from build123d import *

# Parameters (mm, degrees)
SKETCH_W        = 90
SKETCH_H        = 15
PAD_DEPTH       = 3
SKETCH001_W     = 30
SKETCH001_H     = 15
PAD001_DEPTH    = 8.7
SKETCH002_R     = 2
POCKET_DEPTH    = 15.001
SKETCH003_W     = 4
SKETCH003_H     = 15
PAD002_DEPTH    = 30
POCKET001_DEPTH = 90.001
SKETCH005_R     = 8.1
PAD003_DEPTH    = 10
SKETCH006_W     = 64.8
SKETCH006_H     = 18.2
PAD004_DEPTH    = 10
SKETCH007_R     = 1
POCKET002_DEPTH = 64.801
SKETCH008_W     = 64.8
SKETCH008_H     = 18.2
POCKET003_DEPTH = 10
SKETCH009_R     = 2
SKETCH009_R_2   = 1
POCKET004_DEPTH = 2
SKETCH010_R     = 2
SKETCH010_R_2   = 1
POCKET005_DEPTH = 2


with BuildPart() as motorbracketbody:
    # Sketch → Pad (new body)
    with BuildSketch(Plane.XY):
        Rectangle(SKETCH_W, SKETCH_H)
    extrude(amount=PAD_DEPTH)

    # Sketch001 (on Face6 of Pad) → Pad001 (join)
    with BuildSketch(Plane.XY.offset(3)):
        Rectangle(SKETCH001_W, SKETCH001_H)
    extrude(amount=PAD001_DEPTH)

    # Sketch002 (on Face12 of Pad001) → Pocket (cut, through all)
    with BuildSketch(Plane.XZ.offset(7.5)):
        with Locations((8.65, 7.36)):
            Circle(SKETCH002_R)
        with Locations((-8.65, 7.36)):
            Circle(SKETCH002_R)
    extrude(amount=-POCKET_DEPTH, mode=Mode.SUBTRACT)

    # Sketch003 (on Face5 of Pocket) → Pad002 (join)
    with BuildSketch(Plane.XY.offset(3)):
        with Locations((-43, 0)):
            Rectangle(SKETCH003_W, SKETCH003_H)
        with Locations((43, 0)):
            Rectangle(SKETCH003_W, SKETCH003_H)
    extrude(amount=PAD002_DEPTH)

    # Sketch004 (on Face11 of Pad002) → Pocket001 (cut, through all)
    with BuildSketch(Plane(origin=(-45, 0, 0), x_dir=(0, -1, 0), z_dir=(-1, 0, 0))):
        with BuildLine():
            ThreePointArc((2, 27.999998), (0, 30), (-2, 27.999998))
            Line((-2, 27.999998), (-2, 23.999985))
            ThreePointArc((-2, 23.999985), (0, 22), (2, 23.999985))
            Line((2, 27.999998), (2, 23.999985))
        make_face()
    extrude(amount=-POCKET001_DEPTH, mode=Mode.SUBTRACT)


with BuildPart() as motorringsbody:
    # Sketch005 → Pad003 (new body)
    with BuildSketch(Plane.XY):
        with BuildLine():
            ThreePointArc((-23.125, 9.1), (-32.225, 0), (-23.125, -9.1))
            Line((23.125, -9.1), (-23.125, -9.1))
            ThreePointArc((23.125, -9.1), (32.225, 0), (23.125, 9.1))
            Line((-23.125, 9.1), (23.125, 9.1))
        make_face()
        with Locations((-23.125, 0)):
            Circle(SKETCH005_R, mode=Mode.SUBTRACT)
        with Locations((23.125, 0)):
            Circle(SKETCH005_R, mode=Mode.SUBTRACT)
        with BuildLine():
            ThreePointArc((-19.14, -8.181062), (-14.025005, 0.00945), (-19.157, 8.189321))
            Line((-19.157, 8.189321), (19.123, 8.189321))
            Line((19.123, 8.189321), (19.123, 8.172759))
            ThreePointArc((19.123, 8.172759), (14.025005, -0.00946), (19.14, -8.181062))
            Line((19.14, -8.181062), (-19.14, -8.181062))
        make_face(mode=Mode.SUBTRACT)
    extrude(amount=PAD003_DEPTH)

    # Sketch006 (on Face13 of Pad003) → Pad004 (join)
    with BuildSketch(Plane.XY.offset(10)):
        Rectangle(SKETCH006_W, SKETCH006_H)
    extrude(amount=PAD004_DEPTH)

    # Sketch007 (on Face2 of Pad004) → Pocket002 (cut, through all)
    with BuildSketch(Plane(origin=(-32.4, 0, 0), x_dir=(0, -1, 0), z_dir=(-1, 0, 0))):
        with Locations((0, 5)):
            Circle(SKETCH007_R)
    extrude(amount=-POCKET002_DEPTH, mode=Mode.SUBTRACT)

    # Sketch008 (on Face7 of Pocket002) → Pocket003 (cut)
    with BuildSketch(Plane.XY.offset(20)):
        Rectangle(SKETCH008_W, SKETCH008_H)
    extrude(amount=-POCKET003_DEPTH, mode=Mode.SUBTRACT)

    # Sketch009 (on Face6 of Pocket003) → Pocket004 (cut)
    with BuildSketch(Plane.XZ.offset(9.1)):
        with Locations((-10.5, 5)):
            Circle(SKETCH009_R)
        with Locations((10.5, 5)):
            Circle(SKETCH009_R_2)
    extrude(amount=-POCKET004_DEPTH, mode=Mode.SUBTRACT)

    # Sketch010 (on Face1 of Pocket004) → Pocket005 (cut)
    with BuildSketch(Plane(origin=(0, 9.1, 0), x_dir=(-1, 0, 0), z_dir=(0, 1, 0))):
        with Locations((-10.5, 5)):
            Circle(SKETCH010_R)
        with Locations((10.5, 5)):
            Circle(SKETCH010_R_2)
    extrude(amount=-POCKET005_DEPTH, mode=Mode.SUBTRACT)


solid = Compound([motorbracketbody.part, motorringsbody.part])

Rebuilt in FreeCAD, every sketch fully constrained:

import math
import FreeCAD as App
import Part
import Sketcher


def add_polygon(sketch, points):
    """Adds a closed chain of lines whose ends are joined by coincident constraints."""
    first, n = sketch.GeometryCount, len(points)
    for a, b in zip(points, points[1:] + points[:1]):
        sketch.addGeometry(Part.LineSegment(App.Vector(*a, 0), App.Vector(*b, 0)), False)
    for i in range(n):
        sketch.addConstraint(Sketcher.Constraint("Coincident", first + i, 2, first + (i + 1) % n, 1))

doc = App.newDocument("Part")
body = doc.addObject("PartDesign::Body", "Body")

sketch1 = body.newObject("Sketcher::SketchObject", "Sketch")
sketch1.AttachmentSupport = (doc.getObject("XY_Plane"), [""])
sketch1.MapMode = "FlatFace"
add_polygon(sketch1, [(-45, 8), (-45, -8), (45, -8), (45, 8)])
sketch1.addConstraint([
    Sketcher.Constraint("Vertical", 0),
    Sketcher.Constraint("Horizontal", 1),
    Sketcher.Constraint("Vertical", 2),
    Sketcher.Constraint("Horizontal", 3),
    Sketcher.Constraint("Symmetric", 0, 2, 2, 2, -1, 1),
    Sketcher.Constraint("DistanceX", 1, 1, 1, 2, 90.0),
    Sketcher.Constraint("DistanceY", 0, 2, 0, 1, 15.0),
])
pad1 = body.newObject("PartDesign::Pad", "Pad")
pad1.Profile = sketch1
pad1.Length = 3

sketch2 = body.newObject("Sketcher::SketchObject", "Sketch001")
sketch2.AttachmentSupport = (doc.getObject("XY_Plane"), [""])
sketch2.MapMode = "FlatFace"
sketch2.AttachmentOffset = App.Placement(App.Vector(0, 0, 3), App.Rotation())
add_polygon(sketch2, [(-15, 8), (-15, -8), (15, -8), (15, 8)])
sketch2.addConstraint([
    Sketcher.Constraint("Vertical", 0),
    Sketcher.Constraint("Horizontal", 1),
    Sketcher.Constraint("Vertical", 2),
    Sketcher.Constraint("Horizontal", 3),
    Sketcher.Constraint("Symmetric", 0, 2, 2, 2, -1, 1),
    Sketcher.Constraint("DistanceX", 1, 1, 1, 2, 30.0),
    Sketcher.Constraint("DistanceY", 0, 2, 0, 1, 15.0),
])
pad2 = body.newObject("PartDesign::Pad", "Pad001")
pad2.Profile = sketch2
pad2.Length = 8.7

sketch3 = body.newObject("Sketcher::SketchObject", "Sketch002")
sketch3.AttachmentSupport = (doc.getObject("XZ_Plane"), [""])
sketch3.MapMode = "FlatFace"
sketch3.AttachmentOffset = App.Placement(App.Vector(0, 0, 7.5), App.Rotation())
sketch3.addGeometry([
    Part.Circle(App.Vector(8.7, 7.4, 0), App.Vector(0, 0, 1), 2),
    Part.Circle(App.Vector(-8.7, 7.4, 0), App.Vector(0, 0, 1), 2),
], False)
sketch3.addConstraint([
    Sketcher.Constraint("Equal", 0, 1),
    Sketcher.Constraint("Symmetric", 0, 3, 1, 3, -2),
    Sketcher.Constraint("Diameter", 0, 4.0),
    Sketcher.Constraint("DistanceX", 1, 3, 0, 3, 17.3),
    Sketcher.Constraint("DistanceY", -1, 1, 0, 3, 7.36),
])
pocket1 = body.newObject("PartDesign::Pocket", "Pocket")
pocket1.Profile = sketch3
pocket1.Type = "ThroughAll"

sketch4 = body.newObject("Sketcher::SketchObject", "Sketch003")
sketch4.AttachmentSupport = (doc.getObject("XY_Plane"), [""])
sketch4.MapMode = "FlatFace"
sketch4.AttachmentOffset = App.Placement(App.Vector(0, 0, 3), App.Rotation())
add_polygon(sketch4, [(-45, 7.5), (-45, -7.5), (-41, -7.5), (-41, 7.5)])
add_polygon(sketch4, [(41, 7.5), (41, -7.5), (45, -7.5), (45, 7.5)])
sketch4.addConstraint([
    Sketcher.Constraint("Vertical", 0),
    Sketcher.Constraint("Horizontal", 1),
    Sketcher.Constraint("Vertical", 2),
    Sketcher.Constraint("Horizontal", 3),
    Sketcher.Constraint("Vertical", 4),
    Sketcher.Constraint("Horizontal", 5),
    Sketcher.Constraint("Vertical", 6),
    Sketcher.Constraint("Horizontal", 7),
    Sketcher.Constraint("Symmetric", 2, 2, 4, 2, -1, 1),
    Sketcher.Constraint("Symmetric", 0, 2, 6, 2, -1, 1),
    Sketcher.Constraint("Horizontal", 1, 2, 4, 2),
    Sketcher.Constraint("DistanceX", 1, 1, 1, 2, 4.0),
    Sketcher.Constraint("DistanceY", 0, 2, 0, 1, 15.0),
    Sketcher.Constraint("DistanceX", 0, 2, -1, 1, 45.0),
])
pad3 = body.newObject("PartDesign::Pad", "Pad002")
pad3.Profile = sketch4
pad3.Length = 30

sketch5 = body.newObject("Sketcher::SketchObject", "Sketch004")
sketch5.AttachmentSupport = (doc.getObject("YZ_Plane"), [""])
sketch5.MapMode = "FlatFace"
sketch5.AttachmentOffset = App.Placement(App.Vector(0, 0, -45), App.Rotation())
sketch5.addGeometry([
    Part.ArcOfCircle(Part.Circle(App.Vector(0, 28, 0), App.Vector(0, 0, 1), 2), math.radians(0), math.radians(180)),
    Part.LineSegment(App.Vector(2, 28, 0), App.Vector(2, 24, 0)),
    Part.ArcOfCircle(Part.Circle(App.Vector(0, 24, 0), App.Vector(0, 0, 1), 2), math.radians(-180), math.radians(0)),
    Part.LineSegment(App.Vector(-2, 24, 0), App.Vector(-2, 28, 0)),
], False)
sketch5.addConstraint([
    Sketcher.Constraint("Tangent", 0, 1, 1, 1),
    Sketcher.Constraint("Coincident", 1, 2, 2, 2),
    Sketcher.Constraint("Coincident", 2, 1, 3, 1),
    Sketcher.Constraint("Tangent", 3, 2, 0, 2),
    Sketcher.Constraint("Vertical", 1),
    Sketcher.Constraint("Vertical", 3),
    Sketcher.Constraint("Symmetric", 1, 2, 2, 1, -2),
    Sketcher.Constraint("Radius", 0, 2.0),
    Sketcher.Constraint("DistanceY", -1, 1, 0, 3, 28.0),
    Sketcher.Constraint("DistanceY", -1, 1, 2, 3, 24.0),
    Sketcher.Constraint("DistanceY", 1, 2, 1, 1, 4.000013),
])
pocket2 = body.newObject("PartDesign::Pocket", "Pocket001")
pocket2.Profile = sketch5
pocket2.Type = "ThroughAll"
pocket2.Reversed = True
body2 = doc.addObject("PartDesign::Body", "Body001")

sketch6 = body2.newObject("Sketcher::SketchObject", "Sketch005")
sketch6.AttachmentSupport = (doc.getObject("XY_Plane001"), [""])
sketch6.MapMode = "FlatFace"
sketch6.addGeometry([
    Part.ArcOfCircle(Part.Circle(App.Vector(-23.125, 0, 0), App.Vector(0, 0, 1), 9.1), math.radians(90), math.radians(270)),
    Part.LineSegment(App.Vector(-23.125, -9.1, 0), App.Vector(23.125, -9.1, 0)),
    Part.ArcOfCircle(Part.Circle(App.Vector(23.125, 0, 0), App.Vector(0, 0, 1), 9.1), math.radians(-90), math.radians(90)),
    Part.LineSegment(App.Vector(23.125, 9.1, 0), App.Vector(-23.125, 9.1, 0)),
    Part.Circle(App.Vector(-23.125, 0, 0), App.Vector(0, 0, 1), 8.1),
    Part.Circle(App.Vector(23.125, 0, 0), App.Vector(0, 0, 1), 8.1),
    Part.LineSegment(App.Vector(19.14, -8.181, 0), App.Vector(-19.14, -8.181, 0)),
    Part.ArcOfCircle(Part.Circle(App.Vector(-23.125, 0, 0), App.Vector(0, 0, 1), 9.1), math.radians(-64), math.radians(64)),
    Part.LineSegment(App.Vector(-19.157, 8.189, 0), App.Vector(19.123, 8.189, 0)),
    Part.LineSegment(App.Vector(19.123, 8.189, 0), App.Vector(19.123, 8.173, 0)),
    Part.ArcOfCircle(Part.Circle(App.Vector(23.125, 0, 0), App.Vector(0, 0, 1), 9.1), math.radians(116), math.radians(244)),
], False)
sketch6.addConstraint([
    Sketcher.Constraint("Tangent", 0, 2, 1, 1),
    Sketcher.Constraint("Tangent", 1, 2, 2, 1),
    Sketcher.Constraint("Tangent", 2, 2, 3, 1),
    Sketcher.Constraint("Tangent", 3, 2, 0, 1),
    Sketcher.Constraint("Coincident", 6, 2, 7, 1),
    Sketcher.Constraint("Coincident", 7, 2, 8, 1),
    Sketcher.Constraint("Coincident", 8, 2, 9, 1),
    Sketcher.Constraint("Coincident", 9, 2, 10, 1),
    Sketcher.Constraint("Coincident", 10, 2, 6, 1),
    Sketcher.Constraint("Horizontal", 1),
    Sketcher.Constraint("Horizontal", 3),
    Sketcher.Constraint("Horizontal", 6),
    Sketcher.Constraint("Horizontal", 8),
    Sketcher.Constraint("Vertical", 9),
    Sketcher.Constraint("Coincident", 4, 3, 0, 3),
    Sketcher.Constraint("Coincident", 5, 3, 2, 3),
    Sketcher.Constraint("Coincident", 7, 3, 0, 3),
    Sketcher.Constraint("Coincident", 10, 3, 2, 3),
    Sketcher.Constraint("Equal", 4, 5),
    Sketcher.Constraint("Equal", 2, 7),
    Sketcher.Constraint("Equal", 7, 10),
    Sketcher.Constraint("Symmetric", 0, 3, 2, 3, -1, 1),
    Sketcher.Constraint("Equal", 6, 8),
    Sketcher.Constraint("Diameter", 4, 16.2),
    Sketcher.Constraint("Radius", 0, 9.1),
    Sketcher.Constraint("DistanceX", 1, 1, 1, 2, 46.25),
    Sketcher.Constraint("DistanceX", 6, 2, 6, 1, 38.28),
    Sketcher.Constraint("DistanceX", 7, 2, -1, 1, 19.157),
])
pad4 = body2.newObject("PartDesign::Pad", "Pad003")
pad4.Profile = sketch6
pad4.Length = 10

sketch7 = body2.newObject("Sketcher::SketchObject", "Sketch006")
sketch7.AttachmentSupport = (doc.getObject("XY_Plane001"), [""])
sketch7.MapMode = "FlatFace"
sketch7.AttachmentOffset = App.Placement(App.Vector(0, 0, 10), App.Rotation())
add_polygon(sketch7, [(-32, 9), (-32, -9), (32, -9), (32, 9)])
sketch7.addConstraint([
    Sketcher.Constraint("Vertical", 0),
    Sketcher.Constraint("Horizontal", 1),
    Sketcher.Constraint("Vertical", 2),
    Sketcher.Constraint("Horizontal", 3),
    Sketcher.Constraint("Symmetric", 0, 2, 2, 2, -1, 1),
    Sketcher.Constraint("DistanceX", 1, 1, 1, 2, 64.8),
    Sketcher.Constraint("DistanceY", 0, 2, 0, 1, 18.2),
])
pad5 = body2.newObject("PartDesign::Pad", "Pad004")
pad5.Profile = sketch7
pad5.Length = 10

sketch8 = body2.newObject("Sketcher::SketchObject", "Sketch007")
sketch8.AttachmentSupport = (doc.getObject("YZ_Plane001"), [""])
sketch8.MapMode = "FlatFace"
sketch8.AttachmentOffset = App.Placement(App.Vector(0, 0, -32.4), App.Rotation())
sketch8.addGeometry(Part.Circle(App.Vector(0, 5, 0), App.Vector(0, 0, 1), 1), False)
sketch8.addConstraint([
    Sketcher.Constraint("PointOnObject", 0, 3, -2),
    Sketcher.Constraint("Diameter", 0, 2.0),
    Sketcher.Constraint("DistanceY", -1, 1, 0, 3, 5.0),
])
pocket3 = body2.newObject("PartDesign::Pocket", "Pocket002")
pocket3.Profile = sketch8
pocket3.Type = "ThroughAll"
pocket3.Reversed = True

sketch9 = body2.newObject("Sketcher::SketchObject", "Sketch008")
sketch9.AttachmentSupport = (doc.getObject("XY_Plane001"), [""])
sketch9.MapMode = "FlatFace"
sketch9.AttachmentOffset = App.Placement(App.Vector(0, 0, 20), App.Rotation())
add_polygon(sketch9, [(-32, 9), (-32, -9), (32, -9), (32, 9)])
sketch9.addConstraint([
    Sketcher.Constraint("Vertical", 0),
    Sketcher.Constraint("Horizontal", 1),
    Sketcher.Constraint("Vertical", 2),
    Sketcher.Constraint("Horizontal", 3),
    Sketcher.Constraint("Symmetric", 0, 2, 2, 2, -1, 1),
    Sketcher.Constraint("DistanceX", 1, 1, 1, 2, 64.8),
    Sketcher.Constraint("DistanceY", 0, 2, 0, 1, 18.2),
])
pocket4 = body2.newObject("PartDesign::Pocket", "Pocket003")
pocket4.Profile = sketch9
pocket4.Length = 10

sketch10 = body2.newObject("Sketcher::SketchObject", "Sketch009")
sketch10.AttachmentSupport = (doc.getObject("XZ_Plane001"), [""])
sketch10.MapMode = "FlatFace"
sketch10.AttachmentOffset = App.Placement(App.Vector(0, 0, 9.1), App.Rotation())
sketch10.addGeometry([
    Part.Circle(App.Vector(-10.5, 5, 0), App.Vector(0, 0, 1), 2),
    Part.Circle(App.Vector(10.5, 5, 0), App.Vector(0, 0, 1), 1),
], False)
sketch10.addConstraint([
    Sketcher.Constraint("Symmetric", 0, 3, 1, 3, -2),
    Sketcher.Constraint("Diameter", 0, 4.0),
    Sketcher.Constraint("Diameter", 1, 2.0),
    Sketcher.Constraint("DistanceY", -1, 1, 0, 3, 5.0),
    Sketcher.Constraint("DistanceX", 0, 3, 1, 3, 21.0),
])
pocket5 = body2.newObject("PartDesign::Pocket", "Pocket004")
pocket5.Profile = sketch10
pocket5.Length = 2

sketch11 = body2.newObject("Sketcher::SketchObject", "Sketch010")
sketch11.AttachmentSupport = (doc.getObject("XZ_Plane001"), [""])
sketch11.MapMode = "FlatFace"
sketch11.AttachmentOffset = App.Placement(App.Vector(0, 0, -9.1), App.Rotation())
sketch11.addGeometry([
    Part.Circle(App.Vector(10.5, 5, 0), App.Vector(0, 0, 1), 2),
    Part.Circle(App.Vector(-10.5, 5, 0), App.Vector(0, 0, 1), 1),
], False)
sketch11.addConstraint([
    Sketcher.Constraint("Symmetric", 0, 3, 1, 3, -2),
    Sketcher.Constraint("Diameter", 0, 4.0),
    Sketcher.Constraint("Diameter", 1, 2.0),
    Sketcher.Constraint("DistanceY", -1, 1, 0, 3, 5.0),
    Sketcher.Constraint("DistanceX", 1, 3, 0, 3, 21.0),
])
pocket6 = body2.newObject("PartDesign::Pocket", "Pocket005")
pocket6.Profile = sketch11
pocket6.Length = 2
pocket6.Reversed = True

doc.recompute()
